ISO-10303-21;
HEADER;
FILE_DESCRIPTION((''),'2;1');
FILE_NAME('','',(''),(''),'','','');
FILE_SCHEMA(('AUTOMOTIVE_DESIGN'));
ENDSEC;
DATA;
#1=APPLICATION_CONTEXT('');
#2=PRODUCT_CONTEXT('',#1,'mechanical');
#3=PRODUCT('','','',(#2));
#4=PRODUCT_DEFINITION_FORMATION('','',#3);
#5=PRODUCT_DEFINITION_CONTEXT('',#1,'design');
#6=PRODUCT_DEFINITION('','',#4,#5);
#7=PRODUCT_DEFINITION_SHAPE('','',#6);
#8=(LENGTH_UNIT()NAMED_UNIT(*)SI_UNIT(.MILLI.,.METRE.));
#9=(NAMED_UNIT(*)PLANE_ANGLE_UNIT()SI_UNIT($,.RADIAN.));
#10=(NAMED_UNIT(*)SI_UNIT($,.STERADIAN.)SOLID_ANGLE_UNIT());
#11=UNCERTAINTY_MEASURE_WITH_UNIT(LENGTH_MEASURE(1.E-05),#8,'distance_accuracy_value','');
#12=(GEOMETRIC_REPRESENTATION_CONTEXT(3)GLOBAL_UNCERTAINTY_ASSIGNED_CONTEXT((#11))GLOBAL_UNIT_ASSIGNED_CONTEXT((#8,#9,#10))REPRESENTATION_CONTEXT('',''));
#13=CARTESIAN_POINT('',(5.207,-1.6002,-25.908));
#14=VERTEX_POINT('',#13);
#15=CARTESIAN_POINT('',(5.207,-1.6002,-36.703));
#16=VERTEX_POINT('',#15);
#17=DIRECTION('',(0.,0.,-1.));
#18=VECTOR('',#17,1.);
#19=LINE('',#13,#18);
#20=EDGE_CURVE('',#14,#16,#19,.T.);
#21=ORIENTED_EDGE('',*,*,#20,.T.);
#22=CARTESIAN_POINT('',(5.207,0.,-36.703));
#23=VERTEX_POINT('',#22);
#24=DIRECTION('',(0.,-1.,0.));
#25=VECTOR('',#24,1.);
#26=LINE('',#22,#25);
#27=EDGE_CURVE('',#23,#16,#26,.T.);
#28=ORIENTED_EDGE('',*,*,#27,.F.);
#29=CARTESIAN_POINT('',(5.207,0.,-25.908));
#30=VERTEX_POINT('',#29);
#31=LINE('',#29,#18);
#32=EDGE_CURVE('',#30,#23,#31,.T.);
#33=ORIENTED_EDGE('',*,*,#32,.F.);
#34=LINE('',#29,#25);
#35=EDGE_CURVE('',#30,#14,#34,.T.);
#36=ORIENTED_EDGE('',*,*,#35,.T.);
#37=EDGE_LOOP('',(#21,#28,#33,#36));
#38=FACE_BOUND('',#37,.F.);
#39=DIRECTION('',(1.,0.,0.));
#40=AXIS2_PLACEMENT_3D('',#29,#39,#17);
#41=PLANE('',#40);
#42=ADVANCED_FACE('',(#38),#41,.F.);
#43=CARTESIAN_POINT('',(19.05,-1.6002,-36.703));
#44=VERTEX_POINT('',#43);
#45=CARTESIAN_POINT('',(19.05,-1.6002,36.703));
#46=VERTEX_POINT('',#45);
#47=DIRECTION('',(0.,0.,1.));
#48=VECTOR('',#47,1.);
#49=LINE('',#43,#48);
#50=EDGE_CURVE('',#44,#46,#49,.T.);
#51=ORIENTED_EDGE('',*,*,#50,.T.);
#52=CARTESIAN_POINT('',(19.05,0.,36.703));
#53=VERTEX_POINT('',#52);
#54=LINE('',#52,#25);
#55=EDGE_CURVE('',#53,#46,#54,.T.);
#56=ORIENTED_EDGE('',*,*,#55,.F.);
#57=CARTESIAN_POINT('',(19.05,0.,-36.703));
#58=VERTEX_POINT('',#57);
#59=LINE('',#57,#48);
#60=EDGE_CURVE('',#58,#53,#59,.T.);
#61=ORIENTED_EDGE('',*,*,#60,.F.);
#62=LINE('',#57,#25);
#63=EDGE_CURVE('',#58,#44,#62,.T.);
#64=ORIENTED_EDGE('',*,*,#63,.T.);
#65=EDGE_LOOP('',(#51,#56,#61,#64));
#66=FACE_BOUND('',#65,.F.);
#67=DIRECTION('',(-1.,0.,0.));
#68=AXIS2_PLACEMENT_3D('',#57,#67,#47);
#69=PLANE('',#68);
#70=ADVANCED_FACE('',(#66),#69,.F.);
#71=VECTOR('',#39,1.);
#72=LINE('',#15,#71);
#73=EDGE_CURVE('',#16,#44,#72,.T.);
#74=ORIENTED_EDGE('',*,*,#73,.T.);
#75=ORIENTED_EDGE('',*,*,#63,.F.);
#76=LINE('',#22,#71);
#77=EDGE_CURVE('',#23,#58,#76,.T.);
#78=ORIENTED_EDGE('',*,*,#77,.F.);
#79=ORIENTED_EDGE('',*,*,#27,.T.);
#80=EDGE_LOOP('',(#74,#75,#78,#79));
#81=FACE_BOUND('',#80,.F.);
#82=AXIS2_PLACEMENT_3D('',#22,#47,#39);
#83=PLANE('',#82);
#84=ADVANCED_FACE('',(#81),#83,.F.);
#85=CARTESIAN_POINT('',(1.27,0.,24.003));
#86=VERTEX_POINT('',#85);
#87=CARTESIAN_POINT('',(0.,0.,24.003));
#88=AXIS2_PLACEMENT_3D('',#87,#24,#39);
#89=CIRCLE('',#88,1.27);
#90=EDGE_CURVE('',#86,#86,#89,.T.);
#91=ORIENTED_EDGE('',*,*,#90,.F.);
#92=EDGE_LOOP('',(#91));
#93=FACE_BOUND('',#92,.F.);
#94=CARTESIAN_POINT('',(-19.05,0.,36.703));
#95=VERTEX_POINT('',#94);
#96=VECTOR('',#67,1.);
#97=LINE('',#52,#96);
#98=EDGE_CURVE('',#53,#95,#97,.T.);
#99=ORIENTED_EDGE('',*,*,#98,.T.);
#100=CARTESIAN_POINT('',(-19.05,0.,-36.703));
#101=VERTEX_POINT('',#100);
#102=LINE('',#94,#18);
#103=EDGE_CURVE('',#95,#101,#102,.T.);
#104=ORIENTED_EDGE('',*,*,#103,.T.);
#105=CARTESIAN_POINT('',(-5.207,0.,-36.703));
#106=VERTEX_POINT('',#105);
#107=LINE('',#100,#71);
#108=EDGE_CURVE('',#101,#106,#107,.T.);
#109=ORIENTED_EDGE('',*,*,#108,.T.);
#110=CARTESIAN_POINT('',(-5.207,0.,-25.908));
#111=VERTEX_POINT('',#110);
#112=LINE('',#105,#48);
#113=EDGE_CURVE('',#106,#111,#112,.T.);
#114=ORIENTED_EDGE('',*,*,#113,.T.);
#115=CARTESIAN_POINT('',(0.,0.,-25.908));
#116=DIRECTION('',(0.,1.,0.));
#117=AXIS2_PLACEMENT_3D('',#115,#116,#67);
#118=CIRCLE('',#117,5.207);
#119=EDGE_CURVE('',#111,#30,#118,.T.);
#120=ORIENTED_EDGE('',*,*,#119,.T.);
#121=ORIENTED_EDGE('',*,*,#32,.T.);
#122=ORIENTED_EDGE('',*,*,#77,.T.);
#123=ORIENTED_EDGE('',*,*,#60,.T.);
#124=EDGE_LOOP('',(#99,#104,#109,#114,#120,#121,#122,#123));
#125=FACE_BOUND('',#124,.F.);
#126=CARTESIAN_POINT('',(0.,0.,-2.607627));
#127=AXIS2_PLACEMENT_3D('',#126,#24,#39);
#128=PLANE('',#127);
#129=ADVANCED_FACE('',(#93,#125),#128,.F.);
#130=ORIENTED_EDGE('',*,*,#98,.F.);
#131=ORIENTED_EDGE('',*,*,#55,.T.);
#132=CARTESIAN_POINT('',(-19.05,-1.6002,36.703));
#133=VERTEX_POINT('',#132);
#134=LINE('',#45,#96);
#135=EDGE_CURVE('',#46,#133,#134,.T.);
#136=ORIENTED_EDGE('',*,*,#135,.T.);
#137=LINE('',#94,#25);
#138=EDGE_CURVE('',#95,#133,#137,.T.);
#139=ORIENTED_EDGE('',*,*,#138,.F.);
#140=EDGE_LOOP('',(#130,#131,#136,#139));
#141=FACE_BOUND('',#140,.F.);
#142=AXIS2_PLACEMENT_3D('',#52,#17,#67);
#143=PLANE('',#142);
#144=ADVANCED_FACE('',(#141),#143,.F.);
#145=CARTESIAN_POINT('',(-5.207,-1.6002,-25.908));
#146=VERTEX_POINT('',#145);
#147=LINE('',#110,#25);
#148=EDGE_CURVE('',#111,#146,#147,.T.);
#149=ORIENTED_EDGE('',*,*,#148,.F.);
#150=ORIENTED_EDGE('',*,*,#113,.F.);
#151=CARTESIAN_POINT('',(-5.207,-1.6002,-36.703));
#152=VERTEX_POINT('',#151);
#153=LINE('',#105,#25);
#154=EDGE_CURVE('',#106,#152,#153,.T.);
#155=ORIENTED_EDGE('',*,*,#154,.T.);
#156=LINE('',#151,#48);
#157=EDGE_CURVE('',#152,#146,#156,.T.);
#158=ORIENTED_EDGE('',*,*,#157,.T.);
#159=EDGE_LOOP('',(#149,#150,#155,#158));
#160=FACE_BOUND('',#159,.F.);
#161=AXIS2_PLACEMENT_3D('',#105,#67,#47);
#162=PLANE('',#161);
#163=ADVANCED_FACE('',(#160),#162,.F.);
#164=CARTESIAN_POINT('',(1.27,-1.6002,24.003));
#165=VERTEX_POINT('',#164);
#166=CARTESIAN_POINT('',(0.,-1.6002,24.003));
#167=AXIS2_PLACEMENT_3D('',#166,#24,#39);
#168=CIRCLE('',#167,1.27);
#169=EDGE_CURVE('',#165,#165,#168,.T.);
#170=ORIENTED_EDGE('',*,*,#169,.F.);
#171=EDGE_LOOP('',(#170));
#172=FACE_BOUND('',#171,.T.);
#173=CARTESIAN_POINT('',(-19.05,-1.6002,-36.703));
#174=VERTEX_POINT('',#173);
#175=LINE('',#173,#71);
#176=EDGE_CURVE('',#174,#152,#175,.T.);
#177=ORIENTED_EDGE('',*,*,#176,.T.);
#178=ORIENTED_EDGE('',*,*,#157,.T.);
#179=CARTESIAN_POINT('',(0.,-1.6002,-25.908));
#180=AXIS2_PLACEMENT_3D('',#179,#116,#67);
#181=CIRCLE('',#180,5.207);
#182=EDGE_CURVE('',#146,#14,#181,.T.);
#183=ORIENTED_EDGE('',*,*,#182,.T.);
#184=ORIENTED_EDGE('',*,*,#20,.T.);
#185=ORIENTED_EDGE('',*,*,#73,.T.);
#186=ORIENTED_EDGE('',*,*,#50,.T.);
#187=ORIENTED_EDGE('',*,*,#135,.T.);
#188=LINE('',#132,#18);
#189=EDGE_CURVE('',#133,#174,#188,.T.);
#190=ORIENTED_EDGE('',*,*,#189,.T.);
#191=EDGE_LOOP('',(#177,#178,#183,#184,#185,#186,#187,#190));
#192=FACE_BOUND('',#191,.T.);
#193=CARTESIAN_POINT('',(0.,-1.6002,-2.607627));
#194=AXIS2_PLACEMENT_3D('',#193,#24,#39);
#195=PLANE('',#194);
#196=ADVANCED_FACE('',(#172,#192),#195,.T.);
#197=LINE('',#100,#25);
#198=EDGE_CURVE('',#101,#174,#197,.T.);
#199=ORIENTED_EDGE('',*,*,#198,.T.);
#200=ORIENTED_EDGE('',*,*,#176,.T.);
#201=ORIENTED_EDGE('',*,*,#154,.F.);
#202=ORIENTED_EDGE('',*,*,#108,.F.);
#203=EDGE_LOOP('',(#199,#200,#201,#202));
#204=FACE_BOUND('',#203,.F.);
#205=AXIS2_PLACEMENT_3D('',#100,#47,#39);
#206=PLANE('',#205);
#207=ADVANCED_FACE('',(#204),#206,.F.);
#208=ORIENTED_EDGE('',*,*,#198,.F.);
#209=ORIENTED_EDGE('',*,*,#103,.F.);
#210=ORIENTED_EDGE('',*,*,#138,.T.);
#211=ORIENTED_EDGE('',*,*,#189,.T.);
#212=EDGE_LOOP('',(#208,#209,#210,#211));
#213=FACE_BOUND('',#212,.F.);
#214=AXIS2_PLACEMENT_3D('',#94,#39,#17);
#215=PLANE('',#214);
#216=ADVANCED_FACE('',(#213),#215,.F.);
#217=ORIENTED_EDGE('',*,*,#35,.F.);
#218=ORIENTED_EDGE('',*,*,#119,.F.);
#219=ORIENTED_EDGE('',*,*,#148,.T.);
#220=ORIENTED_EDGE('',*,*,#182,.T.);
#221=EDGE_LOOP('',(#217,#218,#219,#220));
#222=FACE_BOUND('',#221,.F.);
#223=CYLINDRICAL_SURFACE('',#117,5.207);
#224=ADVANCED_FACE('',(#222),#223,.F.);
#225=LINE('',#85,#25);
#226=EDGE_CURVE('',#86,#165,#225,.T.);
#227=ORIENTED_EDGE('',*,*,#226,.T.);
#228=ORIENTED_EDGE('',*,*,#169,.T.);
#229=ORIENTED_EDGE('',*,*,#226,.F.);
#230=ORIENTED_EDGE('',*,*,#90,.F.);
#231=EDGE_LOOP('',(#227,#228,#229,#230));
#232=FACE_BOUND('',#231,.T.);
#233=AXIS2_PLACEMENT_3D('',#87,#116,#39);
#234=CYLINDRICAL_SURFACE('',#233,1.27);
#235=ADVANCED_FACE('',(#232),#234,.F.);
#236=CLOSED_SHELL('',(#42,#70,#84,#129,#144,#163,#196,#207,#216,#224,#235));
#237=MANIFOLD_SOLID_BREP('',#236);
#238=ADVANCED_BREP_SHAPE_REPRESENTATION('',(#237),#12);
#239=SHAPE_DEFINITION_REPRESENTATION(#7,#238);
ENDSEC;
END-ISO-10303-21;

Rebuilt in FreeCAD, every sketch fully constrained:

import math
import FreeCAD as App
import Part
import Sketcher
Q = App.Units.Quantity

doc = App.newDocument("Part")
body = doc.addObject("PartDesign::Body", "Body")

# Sketch on XZ plane
sketch1 = body.newObject("Sketcher::SketchObject", "Sketch")
sketch1.AttachmentSupport = (doc.getObject("XZ_Plane"), [""])
sketch1.MapMode = "FlatFace"
sketch1.addGeometry([
    Part.LineSegment(App.Vector(5.2, -36.7, 0), App.Vector(19.1, -36.7, 0)),  # 0
    Part.LineSegment(App.Vector(19.1, -36.7, 0), App.Vector(19.1, 36.7, 0)),  # 1
    Part.LineSegment(App.Vector(19.1, 36.7, 0), App.Vector(-19.1, 36.7, 0)),  # 2
    Part.LineSegment(App.Vector(-19.1, 36.7, 0), App.Vector(-19.1, -36.7, 0)),  # 3
    Part.LineSegment(App.Vector(-19.1, -36.7, 0), App.Vector(-5.2, -36.7, 0)),  # 4
    Part.LineSegment(App.Vector(-5.2, -36.7, 0), App.Vector(-5.2, -25.9, 0)),  # 5
    Part.ArcOfCircle(Part.Circle(App.Vector(0, -25.9, 0), App.Vector(0, 0, 1), 5.2), math.radians(0), math.radians(180)),  # 6
    Part.LineSegment(App.Vector(5.2, -25.9, 0), App.Vector(5.2, -36.7, 0)),  # 7
    Part.Circle(App.Vector(0, 24, 0), App.Vector(0, 0, 1), 1.3),  # 8
], False)
sketch1.addConstraint([
    Sketcher.Constraint("Coincident", 0, 2, 1, 1),
    Sketcher.Constraint("Coincident", 1, 2, 2, 1),
    Sketcher.Constraint("Coincident", 2, 2, 3, 1),
    Sketcher.Constraint("Coincident", 3, 2, 4, 1),
    Sketcher.Constraint("Coincident", 4, 2, 5, 1),
    Sketcher.Constraint("Tangent", 5, 2, 6, 2),
    Sketcher.Constraint("Tangent", 6, 1, 7, 1),
    Sketcher.Constraint("Coincident", 7, 2, 0, 1),
    Sketcher.Constraint("Horizontal", 0),
    Sketcher.Constraint("Vertical", 1),
    Sketcher.Constraint("Horizontal", 2),
    Sketcher.Constraint("Vertical", 3),
    Sketcher.Constraint("Horizontal", 4),
    Sketcher.Constraint("Vertical", 5),
    Sketcher.Constraint("Vertical", 7),
    Sketcher.Constraint("Symmetric", 0, 2, 2, 2, -1, 1),
    Sketcher.Constraint("Symmetric", 4, 2, 7, 2, -2),
    Sketcher.Constraint("PointOnObject", 8, 3, -2),
    Sketcher.Constraint("Diameter", 8, Q("0.1 in")),
    Sketcher.Constraint("DistanceX", 2, 2, 2, 1, Q("1.5 in")),
    Sketcher.Constraint("Radius", 6, Q("0.205 in")),
    Sketcher.Constraint("DistanceY", 1, 1, 1, 2, Q("2.89 in")),
    Sketcher.Constraint("DistanceY", 8, 3, 1, 2, Q("0.5 in")),
    Sketcher.Constraint("DistanceY", 5, 1, 5, 2, Q("0.425 in")),
])
pad1 = body.newObject("PartDesign::Pad", "Pad")
pad1.Profile = sketch1
pad1.Length = Q("0.063 in")

doc.recompute()
